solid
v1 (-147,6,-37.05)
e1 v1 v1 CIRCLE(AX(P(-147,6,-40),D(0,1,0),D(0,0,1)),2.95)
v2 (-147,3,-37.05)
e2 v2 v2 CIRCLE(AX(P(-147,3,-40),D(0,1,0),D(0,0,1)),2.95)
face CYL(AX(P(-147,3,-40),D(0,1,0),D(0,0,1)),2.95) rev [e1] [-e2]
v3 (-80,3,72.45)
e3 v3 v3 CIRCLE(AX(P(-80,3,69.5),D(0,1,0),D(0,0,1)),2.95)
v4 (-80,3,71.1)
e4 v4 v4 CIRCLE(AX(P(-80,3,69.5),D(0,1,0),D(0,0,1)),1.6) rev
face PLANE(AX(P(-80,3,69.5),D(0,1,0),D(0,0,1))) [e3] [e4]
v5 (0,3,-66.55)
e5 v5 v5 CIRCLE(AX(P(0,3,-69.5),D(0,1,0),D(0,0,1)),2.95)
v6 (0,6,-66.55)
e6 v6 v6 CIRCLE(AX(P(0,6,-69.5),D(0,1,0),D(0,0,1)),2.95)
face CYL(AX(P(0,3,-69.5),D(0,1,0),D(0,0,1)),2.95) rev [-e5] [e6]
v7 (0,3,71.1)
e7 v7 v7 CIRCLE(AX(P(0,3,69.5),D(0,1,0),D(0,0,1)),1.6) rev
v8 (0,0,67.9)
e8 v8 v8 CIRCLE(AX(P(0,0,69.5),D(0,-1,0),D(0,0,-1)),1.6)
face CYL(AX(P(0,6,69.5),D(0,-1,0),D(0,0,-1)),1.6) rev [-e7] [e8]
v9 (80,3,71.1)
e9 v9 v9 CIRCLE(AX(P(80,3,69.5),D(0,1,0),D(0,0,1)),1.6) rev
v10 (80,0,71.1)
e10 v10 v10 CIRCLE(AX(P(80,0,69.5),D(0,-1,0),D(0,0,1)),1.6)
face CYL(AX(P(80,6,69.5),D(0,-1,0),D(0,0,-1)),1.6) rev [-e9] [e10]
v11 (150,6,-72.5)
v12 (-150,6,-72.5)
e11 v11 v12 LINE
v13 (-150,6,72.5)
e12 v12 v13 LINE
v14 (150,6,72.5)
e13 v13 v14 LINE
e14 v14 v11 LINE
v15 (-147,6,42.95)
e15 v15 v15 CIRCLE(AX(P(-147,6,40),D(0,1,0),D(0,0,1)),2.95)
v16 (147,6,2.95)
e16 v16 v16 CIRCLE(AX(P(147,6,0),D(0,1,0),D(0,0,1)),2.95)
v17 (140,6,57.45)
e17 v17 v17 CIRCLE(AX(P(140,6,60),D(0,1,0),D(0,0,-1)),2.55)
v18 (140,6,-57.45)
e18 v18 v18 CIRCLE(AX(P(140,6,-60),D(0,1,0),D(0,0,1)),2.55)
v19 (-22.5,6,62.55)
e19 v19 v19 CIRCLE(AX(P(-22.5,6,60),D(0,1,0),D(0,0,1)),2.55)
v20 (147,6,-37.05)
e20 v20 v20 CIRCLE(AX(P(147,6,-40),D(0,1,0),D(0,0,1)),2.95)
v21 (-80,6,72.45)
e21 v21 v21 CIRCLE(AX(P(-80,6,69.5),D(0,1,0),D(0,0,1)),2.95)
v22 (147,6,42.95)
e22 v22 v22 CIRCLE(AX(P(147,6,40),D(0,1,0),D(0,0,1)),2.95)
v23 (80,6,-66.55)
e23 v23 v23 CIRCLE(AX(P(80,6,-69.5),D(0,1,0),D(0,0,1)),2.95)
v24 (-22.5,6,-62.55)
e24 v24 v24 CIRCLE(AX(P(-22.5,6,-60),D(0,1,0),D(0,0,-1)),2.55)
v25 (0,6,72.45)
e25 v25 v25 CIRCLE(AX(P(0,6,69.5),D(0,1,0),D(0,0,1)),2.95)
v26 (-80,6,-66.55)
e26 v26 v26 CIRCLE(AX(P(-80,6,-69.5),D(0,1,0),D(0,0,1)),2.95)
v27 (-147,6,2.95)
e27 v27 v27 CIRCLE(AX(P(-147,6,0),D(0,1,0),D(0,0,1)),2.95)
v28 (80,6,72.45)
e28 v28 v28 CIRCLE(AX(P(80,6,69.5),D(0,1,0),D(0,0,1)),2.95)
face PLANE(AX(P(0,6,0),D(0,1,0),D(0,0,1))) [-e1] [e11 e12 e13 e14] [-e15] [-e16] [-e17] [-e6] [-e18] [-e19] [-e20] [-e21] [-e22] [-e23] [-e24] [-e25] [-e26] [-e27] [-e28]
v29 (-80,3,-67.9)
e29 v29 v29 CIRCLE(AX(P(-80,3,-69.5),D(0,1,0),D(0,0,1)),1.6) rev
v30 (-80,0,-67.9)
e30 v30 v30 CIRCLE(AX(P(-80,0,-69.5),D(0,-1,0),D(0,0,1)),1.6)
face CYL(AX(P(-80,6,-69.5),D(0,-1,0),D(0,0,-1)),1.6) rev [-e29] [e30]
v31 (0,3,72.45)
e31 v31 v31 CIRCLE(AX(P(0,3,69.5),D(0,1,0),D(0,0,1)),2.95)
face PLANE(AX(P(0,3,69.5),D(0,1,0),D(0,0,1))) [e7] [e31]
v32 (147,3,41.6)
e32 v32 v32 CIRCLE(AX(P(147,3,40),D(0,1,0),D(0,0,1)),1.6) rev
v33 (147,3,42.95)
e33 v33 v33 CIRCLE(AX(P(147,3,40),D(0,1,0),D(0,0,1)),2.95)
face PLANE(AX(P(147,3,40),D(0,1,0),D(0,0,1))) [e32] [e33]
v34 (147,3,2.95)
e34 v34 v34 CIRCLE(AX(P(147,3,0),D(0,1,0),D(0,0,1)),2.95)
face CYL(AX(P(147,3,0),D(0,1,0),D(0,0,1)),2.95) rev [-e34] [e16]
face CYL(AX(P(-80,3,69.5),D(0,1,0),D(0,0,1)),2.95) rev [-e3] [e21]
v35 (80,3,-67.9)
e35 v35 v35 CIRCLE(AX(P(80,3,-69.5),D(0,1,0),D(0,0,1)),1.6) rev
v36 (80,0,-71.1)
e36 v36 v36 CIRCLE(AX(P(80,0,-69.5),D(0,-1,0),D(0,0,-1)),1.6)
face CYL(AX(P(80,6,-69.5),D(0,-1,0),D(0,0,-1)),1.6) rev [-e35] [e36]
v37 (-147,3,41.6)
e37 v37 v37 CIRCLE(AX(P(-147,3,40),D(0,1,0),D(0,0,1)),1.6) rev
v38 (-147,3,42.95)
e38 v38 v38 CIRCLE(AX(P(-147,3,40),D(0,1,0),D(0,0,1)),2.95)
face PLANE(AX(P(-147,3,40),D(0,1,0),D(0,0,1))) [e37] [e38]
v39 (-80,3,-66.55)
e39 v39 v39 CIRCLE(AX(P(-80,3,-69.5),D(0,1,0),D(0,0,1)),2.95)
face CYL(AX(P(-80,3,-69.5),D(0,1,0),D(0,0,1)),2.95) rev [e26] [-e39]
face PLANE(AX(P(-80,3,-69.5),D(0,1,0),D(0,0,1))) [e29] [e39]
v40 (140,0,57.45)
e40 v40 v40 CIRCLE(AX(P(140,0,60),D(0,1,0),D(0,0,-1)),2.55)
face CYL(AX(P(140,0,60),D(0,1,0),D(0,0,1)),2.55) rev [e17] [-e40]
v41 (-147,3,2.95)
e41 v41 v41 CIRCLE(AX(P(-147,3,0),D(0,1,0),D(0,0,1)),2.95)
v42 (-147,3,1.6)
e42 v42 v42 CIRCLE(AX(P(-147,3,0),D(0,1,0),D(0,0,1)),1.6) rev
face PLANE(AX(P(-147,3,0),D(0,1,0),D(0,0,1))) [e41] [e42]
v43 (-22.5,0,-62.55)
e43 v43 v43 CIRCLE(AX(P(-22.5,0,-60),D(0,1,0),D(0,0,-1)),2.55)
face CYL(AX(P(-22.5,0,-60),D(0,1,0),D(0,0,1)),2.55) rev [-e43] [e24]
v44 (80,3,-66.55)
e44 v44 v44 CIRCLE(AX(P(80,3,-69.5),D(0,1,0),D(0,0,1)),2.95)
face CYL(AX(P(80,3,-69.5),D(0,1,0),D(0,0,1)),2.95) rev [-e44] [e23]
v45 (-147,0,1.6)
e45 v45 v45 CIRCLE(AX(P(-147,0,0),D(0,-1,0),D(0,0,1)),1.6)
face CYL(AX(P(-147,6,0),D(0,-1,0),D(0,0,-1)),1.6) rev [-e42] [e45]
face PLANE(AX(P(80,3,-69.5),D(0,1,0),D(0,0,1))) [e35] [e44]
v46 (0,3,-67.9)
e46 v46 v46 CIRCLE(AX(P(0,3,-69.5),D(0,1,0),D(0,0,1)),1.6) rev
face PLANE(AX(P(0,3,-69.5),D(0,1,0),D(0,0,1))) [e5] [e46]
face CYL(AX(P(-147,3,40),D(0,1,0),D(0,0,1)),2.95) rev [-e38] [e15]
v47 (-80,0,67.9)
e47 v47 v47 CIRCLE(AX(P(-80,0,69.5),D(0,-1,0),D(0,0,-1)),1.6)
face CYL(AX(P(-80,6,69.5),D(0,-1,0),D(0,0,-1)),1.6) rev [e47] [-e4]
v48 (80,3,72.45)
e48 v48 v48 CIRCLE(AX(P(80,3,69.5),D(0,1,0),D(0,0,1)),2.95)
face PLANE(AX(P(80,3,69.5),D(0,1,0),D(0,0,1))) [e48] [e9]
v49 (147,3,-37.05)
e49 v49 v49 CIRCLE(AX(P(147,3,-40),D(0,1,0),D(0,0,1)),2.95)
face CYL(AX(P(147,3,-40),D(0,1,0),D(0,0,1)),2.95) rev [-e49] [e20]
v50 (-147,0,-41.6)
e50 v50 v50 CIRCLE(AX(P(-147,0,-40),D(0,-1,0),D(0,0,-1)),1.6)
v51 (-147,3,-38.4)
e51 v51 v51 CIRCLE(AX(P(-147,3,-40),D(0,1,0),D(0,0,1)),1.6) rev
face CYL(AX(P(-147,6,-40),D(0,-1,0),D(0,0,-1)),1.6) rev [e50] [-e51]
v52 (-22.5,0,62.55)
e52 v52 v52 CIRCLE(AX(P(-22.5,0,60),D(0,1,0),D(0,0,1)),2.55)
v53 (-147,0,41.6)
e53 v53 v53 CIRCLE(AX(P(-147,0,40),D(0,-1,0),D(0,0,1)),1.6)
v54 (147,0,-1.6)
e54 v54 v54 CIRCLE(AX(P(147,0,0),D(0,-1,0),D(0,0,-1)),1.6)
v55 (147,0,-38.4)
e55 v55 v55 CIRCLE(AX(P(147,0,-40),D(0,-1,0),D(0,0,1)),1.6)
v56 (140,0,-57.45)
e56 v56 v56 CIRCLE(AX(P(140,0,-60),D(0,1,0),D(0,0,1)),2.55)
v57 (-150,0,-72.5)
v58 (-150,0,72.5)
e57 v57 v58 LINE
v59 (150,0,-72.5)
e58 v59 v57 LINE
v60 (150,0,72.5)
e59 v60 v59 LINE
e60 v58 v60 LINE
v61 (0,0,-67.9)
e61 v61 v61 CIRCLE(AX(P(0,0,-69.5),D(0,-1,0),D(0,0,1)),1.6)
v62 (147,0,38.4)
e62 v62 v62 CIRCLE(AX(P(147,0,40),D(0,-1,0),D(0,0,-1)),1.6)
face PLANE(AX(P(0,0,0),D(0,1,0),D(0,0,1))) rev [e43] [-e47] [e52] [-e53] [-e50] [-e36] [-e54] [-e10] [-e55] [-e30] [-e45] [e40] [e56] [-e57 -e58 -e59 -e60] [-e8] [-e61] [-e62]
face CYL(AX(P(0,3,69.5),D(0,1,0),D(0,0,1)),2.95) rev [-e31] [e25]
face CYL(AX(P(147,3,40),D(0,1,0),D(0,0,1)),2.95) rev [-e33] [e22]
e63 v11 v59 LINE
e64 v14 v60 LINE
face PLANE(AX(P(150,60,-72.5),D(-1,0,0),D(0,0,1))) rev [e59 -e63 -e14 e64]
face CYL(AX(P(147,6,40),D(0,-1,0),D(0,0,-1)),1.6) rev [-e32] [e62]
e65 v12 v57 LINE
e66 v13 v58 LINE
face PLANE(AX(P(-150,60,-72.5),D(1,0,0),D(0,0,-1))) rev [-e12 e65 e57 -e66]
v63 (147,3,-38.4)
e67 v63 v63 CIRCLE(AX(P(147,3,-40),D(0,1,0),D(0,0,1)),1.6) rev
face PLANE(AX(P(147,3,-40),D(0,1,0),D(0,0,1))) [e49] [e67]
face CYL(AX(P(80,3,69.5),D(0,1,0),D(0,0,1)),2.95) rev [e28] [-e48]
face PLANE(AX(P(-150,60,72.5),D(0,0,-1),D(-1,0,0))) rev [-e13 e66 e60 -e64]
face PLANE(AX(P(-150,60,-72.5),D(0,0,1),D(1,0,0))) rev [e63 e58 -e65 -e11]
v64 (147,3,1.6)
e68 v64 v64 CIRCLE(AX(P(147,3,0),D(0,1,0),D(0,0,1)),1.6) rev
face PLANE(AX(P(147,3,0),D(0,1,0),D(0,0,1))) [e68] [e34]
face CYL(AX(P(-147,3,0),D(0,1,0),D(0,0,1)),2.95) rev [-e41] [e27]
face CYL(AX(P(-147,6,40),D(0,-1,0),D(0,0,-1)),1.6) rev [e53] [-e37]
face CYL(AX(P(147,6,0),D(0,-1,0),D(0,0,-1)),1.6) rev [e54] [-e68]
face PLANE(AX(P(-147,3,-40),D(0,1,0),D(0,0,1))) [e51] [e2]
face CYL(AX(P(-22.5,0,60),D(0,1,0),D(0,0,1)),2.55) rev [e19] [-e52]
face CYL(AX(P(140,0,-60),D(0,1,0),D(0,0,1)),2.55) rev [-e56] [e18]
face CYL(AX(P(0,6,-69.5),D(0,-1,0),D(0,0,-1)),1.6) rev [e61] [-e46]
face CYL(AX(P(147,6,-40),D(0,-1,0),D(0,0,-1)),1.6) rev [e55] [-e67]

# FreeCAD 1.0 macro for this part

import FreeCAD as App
import Part
import Sketcher
from FreeCAD import Vector
Q = App.Units.Quantity


def faces_at(feature, points):
    """Names of the faces that lie closest to the given points."""
    faces = feature.Shape.Faces
    near = lambda p: min(range(len(faces)), key=lambda i: faces[i].distToShape(Part.Vertex(*p))[0])
    return sorted({f"Face{near(p) + 1}" for p in points})

doc = App.newDocument("Part")
body = doc.addObject("PartDesign::Body", "Body")

# Sketch on XZ plane
sketch1 = body.newObject("Sketcher::SketchObject", "Sketch")
sketch1.AttachmentSupport = (doc.getObject("XZ_Plane"), [""])
sketch1.MapMode = "FlatFace"
sketch1.addGeometry(Part.LineSegment(Vector(-150, -72, 0), Vector(-150, 72, 0)), False)
sketch1.addGeometry(Part.LineSegment(Vector(-150, 72, 0), Vector(150, 72, 0)), False)
sketch1.addGeometry(Part.LineSegment(Vector(150, 72, 0), Vector(150, -72, 0)), False)
sketch1.addGeometry(Part.LineSegment(Vector(150, -72, 0), Vector(-150, -72, 0)), False)
sketch1.addConstraint(Sketcher.Constraint("Coincident", 0, 2, 1, 1))
sketch1.addConstraint(Sketcher.Constraint("Coincident", 1, 2, 2, 1))
sketch1.addConstraint(Sketcher.Constraint("Coincident", 2, 2, 3, 1))
sketch1.addConstraint(Sketcher.Constraint("Coincident", 3, 2, 0, 1))
sketch1.addConstraint(Sketcher.Constraint("Vertical", 0))
sketch1.addConstraint(Sketcher.Constraint("Horizontal", 1))
sketch1.addConstraint(Sketcher.Constraint("Vertical", 2))
sketch1.addConstraint(Sketcher.Constraint("Horizontal", 3))
sketch1.addConstraint(Sketcher.Constraint("Symmetric", 0, 2, 2, 2, -1, 1))
sketch1.addConstraint(Sketcher.Constraint("DistanceX", 1, 1, 1, 2, Q("300 mm")))
sketch1.addConstraint(Sketcher.Constraint("DistanceY", 0, 1, 0, 2, Q("145 mm")))
pad1 = body.newObject("PartDesign::Pad", "Pad")
pad1.Profile = sketch1
pad1.Length = 60
pad1.Reversed = True
doc.recompute()

thickness = body.newObject("PartDesign::Thickness", "Thickness")
thickness.Base = (pad1, faces_at(pad1, [(0, 60, 0)]))
thickness.Value = 6
thickness.Reversed = True
thickness.Join = "Intersection"

# Sketch on XZ plane
sketch2 = body.newObject("Sketcher::SketchObject", "Sketch001")
sketch2.AttachmentSupport = (doc.getObject("XZ_Plane"), [""])
sketch2.MapMode = "FlatFace"
sketch2.AttachmentOffset = App.Placement(Vector(0, 0, -6), App.Rotation())
sketch2.addGeometry(Part.Circle(Vector(140, -60, 0), Vector(0, 0, 1), 2.5), False)
sketch2.addGeometry(Part.Circle(Vector(140, 60, 0), Vector(0, 0, 1), 2.5), False)
sketch2.addGeometry(Part.Circle(Vector(-22.5, 60, 0), Vector(0, 0, 1), 2.5), False)
sketch2.addGeometry(Part.Circle(Vector(-22.5, -60, 0), Vector(0, 0, 1), 2.5), False)
sketch2.addConstraint(Sketcher.Constraint("Equal", 0, 1))
sketch2.addConstraint(Sketcher.Constraint("Equal", 1, 2))
sketch2.addConstraint(Sketcher.Constraint("Equal", 2, 3))
sketch2.addConstraint(Sketcher.Constraint("Symmetric", 0, 3, 1, 3, -1))
sketch2.addConstraint(Sketcher.Constraint("Symmetric", 2, 3, 3, 3, -1))
sketch2.addConstraint(Sketcher.Constraint("Horizontal", 1, 3, 2, 3))
sketch2.addConstraint(Sketcher.Constraint("Diameter", 0, Q("5.1 mm")))
sketch2.addConstraint(Sketcher.Constraint("DistanceX", -1, 1, 0, 3, Q("140 mm")))
sketch2.addConstraint(Sketcher.Constraint("DistanceY", 0, 3, -1, 1, Q("60 mm")))
sketch2.addConstraint(Sketcher.Constraint("DistanceX", 2, 3, -1, 1, Q("22.5 mm")))
pocket1 = body.newObject("PartDesign::Pocket", "Pocket")
pocket1.Profile = sketch2
pocket1.Type = "ThroughAll"
pocket1.Reversed = True

# Sketch on XZ plane
sketch3 = body.newObject("Sketcher::SketchObject", "Sketch002")
sketch3.AttachmentSupport = (doc.getObject("XZ_Plane"), [""])
sketch3.MapMode = "FlatFace"
sketch3.AttachmentOffset = App.Placement(Vector(0, 0, -6), App.Rotation())
sketch3.addGeometry(Part.LineSegment(Vector(-150, -72, 0), Vector(-150, 72, 0)), False)
sketch3.addGeometry(Part.LineSegment(Vector(-150, 72, 0), Vector(150, 72, 0)), False)
sketch3.addGeometry(Part.LineSegment(Vector(150, 72, 0), Vector(150, -72, 0)), False)
sketch3.addGeometry(Part.LineSegment(Vector(150, -72, 0), Vector(-150, -72, 0)), False)
sketch3.addConstraint(Sketcher.Constraint("Coincident", 0, 2, 1, 1))
sketch3.addConstraint(Sketcher.Constraint("Coincident", 1, 2, 2, 1))
sketch3.addConstraint(Sketcher.Constraint("Coincident", 2, 2, 3, 1))
sketch3.addConstraint(Sketcher.Constraint("Coincident", 3, 2, 0, 1))
sketch3.addConstraint(Sketcher.Constraint("Vertical", 0))
sketch3.addConstraint(Sketcher.Constraint("Horizontal", 1))
sketch3.addConstraint(Sketcher.Constraint("Vertical", 2))
sketch3.addConstraint(Sketcher.Constraint("Horizontal", 3))
sketch3.addConstraint(Sketcher.Constraint("Symmetric", 0, 2, 2, 2, -1, 1))
sketch3.addConstraint(Sketcher.Constraint("DistanceX", 1, 1, 1, 2, Q("300 mm")))
sketch3.addConstraint(Sketcher.Constraint("DistanceY", 0, 1, 0, 2, Q("145 mm")))
pocket2 = body.newObject("PartDesign::Pocket", "Pocket001")
pocket2.Profile = sketch3
pocket2.Type = "ThroughAll"

# Sketch on XZ plane
sketch4 = body.newObject("Sketcher::SketchObject", "Sketch003")
sketch4.AttachmentSupport = (doc.getObject("XZ_Plane"), [""])
sketch4.MapMode = "FlatFace"
sketch4.addGeometry(Part.Circle(Vector(147, 0, 0), Vector(0, 0, 1), 1.6), False)
sketch4.addGeometry(Part.Circle(Vector(147, 40, 0), Vector(0, 0, 1), 1.6), False)
sketch4.addGeometry(Part.Circle(Vector(147, -40, 0), Vector(0, 0, 1), 1.6), False)
sketch4.addGeometry(Part.Circle(Vector(-147, -40, 0), Vector(0, 0, 1), 1.6), False)
sketch4.addGeometry(Part.Circle(Vector(-147, 0, 0), Vector(0, 0, 1), 1.6), False)
sketch4.addGeometry(Part.Circle(Vector(-147, 40, 0), Vector(0, 0, 1), 1.6), False)
sketch4.addGeometry(Part.Circle(Vector(0, 69.5, 0), Vector(0, 0, 1), 1.6), False)
sketch4.addGeometry(Part.Circle(Vector(-80, 69.5, 0), Vector(0, 0, 1), 1.6), False)
sketch4.addGeometry(Part.Circle(Vector(80, 69.5, 0), Vector(0, 0, 1), 1.6), False)
sketch4.addGeometry(Part.Circle(Vector(80, -69.5, 0), Vector(0, 0, 1), 1.6), False)
sketch4.addGeometry(Part.Circle(Vector(0, -69.5, 0), Vector(0, 0, 1), 1.6), False)
sketch4.addGeometry(Part.Circle(Vector(-80, -69.5, 0), Vector(0, 0, 1), 1.6), False)
sketch4.addConstraint(Sketcher.Constraint("Equal", 0, 1))
sketch4.addConstraint(Sketcher.Constraint("Equal", 1, 2))
sketch4.addConstraint(Sketcher.Constraint("Equal", 2, 3))
sketch4.addConstraint(Sketcher.Constraint("Equal", 3, 4))
sketch4.addConstraint(Sketcher.Constraint("Equal", 4, 5))
sketch4.addConstraint(Sketcher.Constraint("Equal", 5, 6))
sketch4.addConstraint(Sketcher.Constraint("Equal", 6, 7))
sketch4.addConstraint(Sketcher.Constraint("Equal", 7, 8))
sketch4.addConstraint(Sketcher.Constraint("Equal", 8, 9))
sketch4.addConstraint(Sketcher.Constraint("Equal", 9, 10))
sketch4.addConstraint(Sketcher.Constraint("Equal", 10, 11))
sketch4.addConstraint(Sketcher.Constraint("Symmetric", 1, 3, 3, 3, -1, 1))
sketch4.addConstraint(Sketcher.Constraint("Symmetric", 0, 3, 4, 3, -1, 1))
sketch4.addConstraint(Sketcher.Constraint("Symmetric", 2, 3, 5, 3, -1, 1))
sketch4.addConstraint(Sketcher.Constraint("Symmetric", 7, 3, 9, 3, -1, 1))
sketch4.addConstraint(Sketcher.Constraint("Symmetric", 6, 3, 10, 3, -1, 1))
sketch4.addConstraint(Sketcher.Constraint("Symmetric", 8, 3, 11, 3, -1, 1))
sketch4.addConstraint(Sketcher.Constraint("Symmetric", 2, 3, 3, 3, -2))
sketch4.addConstraint(Sketcher.Constraint("Symmetric", 7, 3, 8, 3, -2))
sketch4.addConstraint(Sketcher.Constraint("PointOnObject", 0, 3, -1))
sketch4.addConstraint(Sketcher.Constraint("PointOnObject", 6, 3, -2))
sketch4.addConstraint(Sketcher.Constraint("Horizontal", 6, 3, 7, 3))
sketch4.addConstraint(Sketcher.Constraint("Vertical", 0, 3, 1, 3))
sketch4.addConstraint(Sketcher.Constraint("Diameter", 0, Q("3.2 mm")))
sketch4.addConstraint(Sketcher.Constraint("DistanceX", -1, 1, 0, 3, Q("147 mm")))
sketch4.addConstraint(Sketcher.Constraint("DistanceY", -1, 1, 1, 3, Q("40 mm")))
sketch4.addConstraint(Sketcher.Constraint("DistanceX", 7, 3, -1, 1, Q("80 mm")))
sketch4.addConstraint(Sketcher.Constraint("DistanceY", 9, 3, 8, 3, Q("139 mm")))
pocket3 = body.newObject("PartDesign::Pocket", "Pocket002")
pocket3.Profile = sketch4
pocket3.Type = "ThroughAll"

# Sketch on XZ plane
sketch5 = body.newObject("Sketcher::SketchObject", "Sketch004")
sketch5.AttachmentSupport = (doc.getObject("XZ_Plane"), [""])
sketch5.MapMode = "FlatFace"
sketch5.AttachmentOffset = App.Placement(Vector(0, 0, -6), App.Rotation())
sketch5.addGeometry(Part.Circle(Vector(147, 40, 0), Vector(0, 0, 1), 3), False)
sketch5.addGeometry(Part.Circle(Vector(147, 0, 0), Vector(0, 0, 1), 3), False)
sketch5.addGeometry(Part.Circle(Vector(147, -40, 0), Vector(0, 0, 1), 3), False)
sketch5.addGeometry(Part.Circle(Vector(80, -69.5, 0), Vector(0, 0, 1), 3), False)
sketch5.addGeometry(Part.Circle(Vector(0, -69.5, 0), Vector(0, 0, 1), 3), False)
sketch5.addGeometry(Part.Circle(Vector(-80, -69.5, 0), Vector(0, 0, 1), 3), False)
sketch5.addGeometry(Part.Circle(Vector(-147, -40, 0), Vector(0, 0, 1), 3), False)
sketch5.addGeometry(Part.Circle(Vector(-147, 0, 0), Vector(0, 0, 1), 3), False)
sketch5.addGeometry(Part.Circle(Vector(-147, 40, 0), Vector(0, 0, 1), 3), False)
sketch5.addGeometry(Part.Circle(Vector(80, 69.5, 0), Vector(0, 0, 1), 3), False)
sketch5.addGeometry(Part.Circle(Vector(0, 69.5, 0), Vector(0, 0, 1), 3), False)
sketch5.addGeometry(Part.Circle(Vector(-80, 69.5, 0), Vector(0, 0, 1), 3), False)
sketch5.addConstraint(Sketcher.Constraint("Equal", 0, 1))
sketch5.addConstraint(Sketcher.Constraint("Equal", 1, 2))
sketch5.addConstraint(Sketcher.Constraint("Equal", 2, 3))
sketch5.addConstraint(Sketcher.Constraint("Equal", 3, 4))
sketch5.addConstraint(Sketcher.Constraint("Equal", 4, 5))
sketch5.addConstraint(Sketcher.Constraint("Equal", 5, 6))
sketch5.addConstraint(Sketcher.Constraint("Equal", 6, 7))
sketch5.addConstraint(Sketcher.Constraint("Equal", 7, 8))
sketch5.addConstraint(Sketcher.Constraint("Equal", 8, 9))
sketch5.addConstraint(Sketcher.Constraint("Equal", 9, 10))
sketch5.addConstraint(Sketcher.Constraint("Equal", 10, 11))
sketch5.addConstraint(Sketcher.Constraint("Symmetric", 0, 3, 6, 3, -1, 1))
sketch5.addConstraint(Sketcher.Constraint("Symmetric", 1, 3, 7, 3, -1, 1))
sketch5.addConstraint(Sketcher.Constraint("Symmetric", 2, 3, 8, 3, -1, 1))
sketch5.addConstraint(Sketcher.Constraint("Symmetric", 5, 3, 9, 3, -1, 1))
sketch5.addConstraint(Sketcher.Constraint("Symmetric", 4, 3, 10, 3, -1, 1))
sketch5.addConstraint(Sketcher.Constraint("Symmetric", 3, 3, 11, 3, -1, 1))
sketch5.addConstraint(Sketcher.Constraint("Symmetric", 3, 3, 5, 3, -2))
sketch5.addConstraint(Sketcher.Constraint("Symmetric", 2, 3, 6, 3, -2))
sketch5.addConstraint(Sketcher.Constraint("PointOnObject", 1, 3, -1))
sketch5.addConstraint(Sketcher.Constraint("PointOnObject", 4, 3, -2))
sketch5.addConstraint(Sketcher.Constraint("Horizontal", 3, 3, 4, 3))
sketch5.addConstraint(Sketcher.Constraint("Vertical", 0, 3, 1, 3))
sketch5.addConstraint(Sketcher.Constraint("Diameter", 0, Q("5.9 mm")))
sketch5.addConstraint(Sketcher.Constraint("DistanceX", -1, 1, 0, 3, Q("147 mm")))
sketch5.addConstraint(Sketcher.Constraint("DistanceY", -1, 1, 0, 3, Q("40 mm")))
sketch5.addConstraint(Sketcher.Constraint("DistanceX", -1, 1, 3, 3, Q("80 mm")))
sketch5.addConstraint(Sketcher.Constraint("DistanceY", 3, 3, 9, 3, Q("139 mm")))
pocket4 = body.newObject("PartDesign::Pocket", "Pocket003")
pocket4.Profile = sketch5
pocket4.Length = 3
pocket4.Reversed = True

doc.recompute()
